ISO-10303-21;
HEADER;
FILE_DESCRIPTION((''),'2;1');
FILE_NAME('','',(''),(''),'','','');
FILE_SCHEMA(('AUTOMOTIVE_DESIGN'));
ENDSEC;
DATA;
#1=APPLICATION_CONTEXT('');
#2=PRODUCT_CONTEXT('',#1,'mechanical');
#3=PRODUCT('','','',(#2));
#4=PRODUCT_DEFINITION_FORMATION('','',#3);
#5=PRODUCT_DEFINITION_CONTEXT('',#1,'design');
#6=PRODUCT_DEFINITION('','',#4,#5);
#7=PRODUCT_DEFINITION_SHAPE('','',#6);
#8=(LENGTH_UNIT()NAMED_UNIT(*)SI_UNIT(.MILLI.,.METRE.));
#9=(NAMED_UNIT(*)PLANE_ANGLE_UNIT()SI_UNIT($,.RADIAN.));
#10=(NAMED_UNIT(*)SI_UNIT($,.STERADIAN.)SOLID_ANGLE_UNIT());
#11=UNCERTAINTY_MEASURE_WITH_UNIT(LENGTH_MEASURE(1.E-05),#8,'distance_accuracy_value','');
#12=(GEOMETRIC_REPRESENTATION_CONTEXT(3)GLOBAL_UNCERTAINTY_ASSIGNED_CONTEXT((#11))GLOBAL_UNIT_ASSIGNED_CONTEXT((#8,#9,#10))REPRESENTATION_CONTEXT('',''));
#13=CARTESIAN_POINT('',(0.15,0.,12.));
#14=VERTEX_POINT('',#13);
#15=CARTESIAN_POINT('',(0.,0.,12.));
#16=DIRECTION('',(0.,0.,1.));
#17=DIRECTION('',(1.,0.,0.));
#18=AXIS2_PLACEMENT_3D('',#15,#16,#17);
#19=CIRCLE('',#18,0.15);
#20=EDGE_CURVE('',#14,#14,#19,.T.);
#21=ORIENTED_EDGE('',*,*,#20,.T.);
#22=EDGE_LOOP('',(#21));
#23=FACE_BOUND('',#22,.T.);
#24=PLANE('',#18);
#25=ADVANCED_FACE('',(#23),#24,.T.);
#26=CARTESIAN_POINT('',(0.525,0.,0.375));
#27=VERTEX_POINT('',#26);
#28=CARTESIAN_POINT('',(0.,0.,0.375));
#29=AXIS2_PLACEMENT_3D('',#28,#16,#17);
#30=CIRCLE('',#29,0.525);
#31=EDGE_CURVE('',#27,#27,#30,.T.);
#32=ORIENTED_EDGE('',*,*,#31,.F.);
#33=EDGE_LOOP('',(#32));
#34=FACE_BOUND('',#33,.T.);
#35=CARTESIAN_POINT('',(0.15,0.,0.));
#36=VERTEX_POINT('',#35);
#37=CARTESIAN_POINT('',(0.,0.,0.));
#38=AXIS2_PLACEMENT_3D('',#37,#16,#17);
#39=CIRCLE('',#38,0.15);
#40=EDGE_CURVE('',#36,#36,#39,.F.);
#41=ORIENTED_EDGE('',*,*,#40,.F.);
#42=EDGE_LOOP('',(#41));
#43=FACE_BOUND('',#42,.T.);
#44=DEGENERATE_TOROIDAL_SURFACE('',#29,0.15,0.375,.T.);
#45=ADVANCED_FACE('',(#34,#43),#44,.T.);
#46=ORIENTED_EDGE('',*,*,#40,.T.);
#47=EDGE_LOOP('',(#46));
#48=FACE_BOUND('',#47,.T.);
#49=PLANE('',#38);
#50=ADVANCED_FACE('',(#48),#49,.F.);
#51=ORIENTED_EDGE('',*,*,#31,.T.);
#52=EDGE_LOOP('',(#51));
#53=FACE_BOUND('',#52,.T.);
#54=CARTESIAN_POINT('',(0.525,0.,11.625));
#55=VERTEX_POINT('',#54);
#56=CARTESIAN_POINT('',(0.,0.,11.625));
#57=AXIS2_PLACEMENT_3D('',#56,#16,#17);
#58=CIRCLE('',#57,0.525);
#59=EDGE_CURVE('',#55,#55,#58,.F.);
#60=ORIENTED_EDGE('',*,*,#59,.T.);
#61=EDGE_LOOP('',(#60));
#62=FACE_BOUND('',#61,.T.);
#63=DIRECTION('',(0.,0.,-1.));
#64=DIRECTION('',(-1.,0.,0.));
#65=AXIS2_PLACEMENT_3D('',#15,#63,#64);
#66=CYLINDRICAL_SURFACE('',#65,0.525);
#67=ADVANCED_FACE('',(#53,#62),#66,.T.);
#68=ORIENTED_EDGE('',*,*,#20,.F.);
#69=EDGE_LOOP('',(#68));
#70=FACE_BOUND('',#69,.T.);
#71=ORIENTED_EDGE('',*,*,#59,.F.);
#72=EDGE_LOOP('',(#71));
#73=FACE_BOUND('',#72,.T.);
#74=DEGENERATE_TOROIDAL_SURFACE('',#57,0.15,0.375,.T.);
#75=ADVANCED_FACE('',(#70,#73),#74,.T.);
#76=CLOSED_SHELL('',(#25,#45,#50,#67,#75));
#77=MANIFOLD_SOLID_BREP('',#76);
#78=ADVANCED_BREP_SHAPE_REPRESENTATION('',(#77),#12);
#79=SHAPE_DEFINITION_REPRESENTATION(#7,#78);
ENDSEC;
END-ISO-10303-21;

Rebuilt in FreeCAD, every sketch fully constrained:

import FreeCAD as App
import Part
import Sketcher

V = App.Vector


def edges_at(feature, points):
    """Names of the edges that pass closest to the given points."""
    edges = feature.Shape.Edges
    near = lambda p: min(range(len(edges)), key=lambda i: edges[i].distToShape(Part.Vertex(*p))[0])
    return sorted({f"Edge{near(p) + 1}" for p in points})

doc = App.newDocument("Part")
params = doc.addObject("Spreadsheet::Sheet", "Params")
for row, (alias, value) in enumerate([
    ("sketch1_diameter", "1.05 mm"),
    ("pad1_length", "12 mm"),
    ("fillet_radius", "0.375 mm"),
], start=1):
    params.set(f"A{row}", alias)
    params.set(f"B{row}", "=" + value)
    params.setAlias(f"B{row}", alias)

body = doc.addObject("PartDesign::Body", "Body")

# Sketch on XY plane
sketch1 = doc.addObject("Sketcher::SketchObject", "Sketch")
body.addObject(sketch1)
sketch1.AttachmentSupport = (doc.XY_Plane, [""])
sketch1.MapMode = "FlatFace"
sketch1.addGeometry(Part.Circle(V(0, 0, 0), V(0, 0, 1), 0.5), False)
sketch1.addConstraint(Sketcher.Constraint("Coincident", 0, 3, -1, 1))
sketch1.addConstraint(Sketcher.Constraint("Diameter", 0, 1.05))
sketch1.setExpression("Constraints[1]", "Params.sketch1_diameter")
pad1 = doc.addObject("PartDesign::Pad", "Pad")
body.addObject(pad1)
pad1.Profile = sketch1
pad1.setExpression("Length", "Params.pad1_length")
doc.recompute()

fillet = doc.addObject("PartDesign::Fillet", "Fillet")
body.addObject(fillet)
fillet.Base = (pad1, edges_at(pad1, [(-0.525, 0, 0), (-0.525, 0, 12)]))
fillet.setExpression("Radius", "Params.fillet_radius")

doc.recompute()
